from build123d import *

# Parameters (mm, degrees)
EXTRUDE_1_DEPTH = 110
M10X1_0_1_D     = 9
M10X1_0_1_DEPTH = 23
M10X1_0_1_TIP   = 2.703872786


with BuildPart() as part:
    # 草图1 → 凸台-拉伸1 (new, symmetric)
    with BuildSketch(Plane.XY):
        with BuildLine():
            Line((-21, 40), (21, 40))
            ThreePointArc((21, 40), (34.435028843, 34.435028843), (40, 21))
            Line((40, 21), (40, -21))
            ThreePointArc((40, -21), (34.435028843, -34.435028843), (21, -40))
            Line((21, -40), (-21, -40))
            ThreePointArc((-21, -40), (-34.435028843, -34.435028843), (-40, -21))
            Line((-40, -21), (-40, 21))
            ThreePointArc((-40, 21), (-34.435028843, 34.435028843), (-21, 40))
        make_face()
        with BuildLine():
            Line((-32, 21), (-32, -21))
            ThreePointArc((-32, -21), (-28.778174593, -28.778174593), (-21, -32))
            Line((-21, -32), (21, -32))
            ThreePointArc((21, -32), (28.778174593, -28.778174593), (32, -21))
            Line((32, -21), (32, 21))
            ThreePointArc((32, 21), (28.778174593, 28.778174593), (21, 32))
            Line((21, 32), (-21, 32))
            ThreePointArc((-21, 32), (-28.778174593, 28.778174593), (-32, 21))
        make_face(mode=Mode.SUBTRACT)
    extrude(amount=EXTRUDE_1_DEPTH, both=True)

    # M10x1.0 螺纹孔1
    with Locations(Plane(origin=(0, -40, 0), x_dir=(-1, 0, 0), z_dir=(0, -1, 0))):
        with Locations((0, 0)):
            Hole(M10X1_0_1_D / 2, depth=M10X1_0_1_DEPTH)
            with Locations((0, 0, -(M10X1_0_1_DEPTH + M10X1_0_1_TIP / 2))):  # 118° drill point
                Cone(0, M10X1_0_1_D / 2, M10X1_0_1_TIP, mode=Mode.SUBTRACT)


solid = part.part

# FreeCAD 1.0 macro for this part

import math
import FreeCAD as App
import Part
import Sketcher
Q = App.Units.Quantity

doc = App.newDocument("Part")
params = doc.addObject("Spreadsheet::Sheet", "Params")
for row, (alias, value) in enumerate([
    ("sketch1_radius", "19 mm"),
    ("sketch1_radius2", "11 mm"),
    ("sketch1_width", "42 mm"),
    ("pad1_length", "220 mm"),
    ("sketch2_diameter", "9 mm"),
    ("hole_diameter", "9 mm"),
    ("hole_depth", "23 mm"),
], start=1):
    params.set(f"A{row}", alias)
    params.set(f"B{row}", "=" + value)
    params.setAlias(f"B{row}", alias)

body = doc.addObject("PartDesign::Body", "Body")

# Sketch on XY plane
sketch1 = doc.addObject("Sketcher::SketchObject", "Sketch")
body.addObject(sketch1)
sketch1.AttachmentSupport = (doc.XY_Plane, [""])
sketch1.MapMode = "FlatFace"
sketch1.addGeometry([
    Part.LineSegment(App.Vector(21, 40, 0), App.Vector(-21, 40, 0)),  # 0
    Part.ArcOfCircle(Part.Circle(App.Vector(-21, 21, 0), App.Vector(0, 0, 1), 19), math.radians(90), math.radians(180)),  # 1
    Part.LineSegment(App.Vector(-40, 21, 0), App.Vector(-40, -21, 0)),  # 2
    Part.ArcOfCircle(Part.Circle(App.Vector(-21, -21, 0), App.Vector(0, 0, 1), 19), math.radians(180), math.radians(270)),  # 3
    Part.LineSegment(App.Vector(-21, -40, 0), App.Vector(21, -40, 0)),  # 4
    Part.ArcOfCircle(Part.Circle(App.Vector(21, -21, 0), App.Vector(0, 0, 1), 19), math.radians(-90), math.radians(0)),  # 5
    Part.LineSegment(App.Vector(40, -21, 0), App.Vector(40, 21, 0)),  # 6
    Part.ArcOfCircle(Part.Circle(App.Vector(21, 21, 0), App.Vector(0, 0, 1), 19), math.radians(0), math.radians(90)),  # 7
    Part.ArcOfCircle(Part.Circle(App.Vector(-21, 21, 0), App.Vector(0, 0, 1), 11), math.radians(90), math.radians(180)),  # 8
    Part.LineSegment(App.Vector(-21, 32, 0), App.Vector(21, 32, 0)),  # 9
    Part.ArcOfCircle(Part.Circle(App.Vector(21, 21, 0), App.Vector(0, 0, 1), 11), math.radians(0), math.radians(90)),  # 10
    Part.LineSegment(App.Vector(32, 21, 0), App.Vector(32, -21, 0)),  # 11
    Part.ArcOfCircle(Part.Circle(App.Vector(21, -21, 0), App.Vector(0, 0, 1), 11), math.radians(-90), math.radians(0)),  # 12
    Part.LineSegment(App.Vector(21, -32, 0), App.Vector(-21, -32, 0)),  # 13
    Part.ArcOfCircle(Part.Circle(App.Vector(-21, -21, 0), App.Vector(0, 0, 1), 11), math.radians(180), math.radians(270)),  # 14
    Part.LineSegment(App.Vector(-32, -21, 0), App.Vector(-32, 21, 0)),  # 15
], False)
sketch1.addConstraint([
    Sketcher.Constraint("Tangent", 0, 2, 1, 1),
    Sketcher.Constraint("Tangent", 1, 2, 2, 1),
    Sketcher.Constraint("Tangent", 2, 2, 3, 1),
    Sketcher.Constraint("Tangent", 3, 2, 4, 1),
    Sketcher.Constraint("Tangent", 4, 2, 5, 1),
    Sketcher.Constraint("Tangent", 5, 2, 6, 1),
    Sketcher.Constraint("Tangent", 6, 2, 7, 1),
    Sketcher.Constraint("Tangent", 7, 2, 0, 1),
    Sketcher.Constraint("Tangent", 8, 1, 9, 1),
    Sketcher.Constraint("Tangent", 9, 2, 10, 2),
    Sketcher.Constraint("Tangent", 10, 1, 11, 1),
    Sketcher.Constraint("Tangent", 11, 2, 12, 2),
    Sketcher.Constraint("Tangent", 12, 1, 13, 1),
    Sketcher.Constraint("Tangent", 13, 2, 14, 2),
    Sketcher.Constraint("Tangent", 14, 1, 15, 1),
    Sketcher.Constraint("Tangent", 15, 2, 8, 2),
    Sketcher.Constraint("Horizontal", 0),
    Sketcher.Constraint("Vertical", 2),
    Sketcher.Constraint("Horizontal", 4),
    Sketcher.Constraint("Vertical", 6),
    Sketcher.Constraint("Horizontal", 9),
    Sketcher.Constraint("Vertical", 11),
    Sketcher.Constraint("Horizontal", 13),
    Sketcher.Constraint("Vertical", 15),
    Sketcher.Constraint("Coincident", 8, 3, 1, 3),
    Sketcher.Constraint("Coincident", 10, 3, 7, 3),
    Sketcher.Constraint("Coincident", 12, 3, 5, 3),
    Sketcher.Constraint("Equal", 1, 3),
    Sketcher.Constraint("Equal", 3, 5),
    Sketcher.Constraint("Equal", 5, 7),
    Sketcher.Constraint("Equal", 12, 14),
    Sketcher.Constraint("Symmetric", 1, 3, 5, 3, -1, 1),
    Sketcher.Constraint("Equal", 13, 2),
    Sketcher.Constraint("Radius", 1, Q("19 mm")),
    Sketcher.Constraint("Radius", 8, Q("11 mm")),
    Sketcher.Constraint("DistanceX", 0, 2, 0, 1, Q("42 mm")),
])
sketch1.setExpression("Constraints[33]", "Params.sketch1_radius")
sketch1.setExpression("Constraints[34]", "Params.sketch1_radius2")
sketch1.setExpression("Constraints[35]", "Params.sketch1_width")
pad1 = doc.addObject("PartDesign::Pad", "Pad")
body.addObject(pad1)
pad1.Profile = sketch1
pad1.setExpression("Length", "Params.pad1_length")
pad1.Midplane = True

# Sketch on XZ plane
sketch2 = doc.addObject("Sketcher::SketchObject", "Sketch001")
body.addObject(sketch2)
sketch2.AttachmentSupport = (doc.XZ_Plane, [""])
sketch2.MapMode = "FlatFace"
sketch2.AttachmentOffset = App.Placement(App.Vector(0, 0, 40), App.Rotation())
sketch2.addGeometry(Part.Circle(App.Vector(0, 0, 0), App.Vector(0, 0, 1), 4.5), False)
sketch2.addConstraint([
    Sketcher.Constraint("Coincident", 0, 3, -1, 1),
    Sketcher.Constraint("Diameter", 0, Q("9 mm")),
])
sketch2.setExpression("Constraints[1]", "Params.sketch2_diameter")
doc.recompute()
hole = doc.addObject("PartDesign::Hole", "Hole")
body.addObject(hole)
hole.Profile = sketch2
hole.ThreadType = "None"
hole.setExpression("Diameter", "Params.hole_diameter")
hole.DepthType = "Dimension"
hole.setExpression("Depth", "Params.hole_depth")
hole.DrillPoint = "Angled"
hole.DrillPointAngle = 118

doc.recompute()
